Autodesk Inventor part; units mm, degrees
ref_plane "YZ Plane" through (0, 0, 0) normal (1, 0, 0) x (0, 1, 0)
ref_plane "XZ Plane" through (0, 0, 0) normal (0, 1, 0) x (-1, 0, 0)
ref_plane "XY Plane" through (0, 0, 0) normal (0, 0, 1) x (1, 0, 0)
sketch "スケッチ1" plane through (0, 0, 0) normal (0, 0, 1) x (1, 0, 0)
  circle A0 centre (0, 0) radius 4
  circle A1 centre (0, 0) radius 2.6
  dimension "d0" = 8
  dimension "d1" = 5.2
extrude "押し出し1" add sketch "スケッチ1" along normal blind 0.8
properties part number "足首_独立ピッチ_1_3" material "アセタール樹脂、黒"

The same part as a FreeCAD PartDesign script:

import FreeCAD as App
import Part
import Sketcher
from FreeCAD import Vector
Q = App.Units.Quantity

doc = App.newDocument("Part")
body = doc.addObject("PartDesign::Body", "Body")

# Sketch on XY plane
sketch1 = body.newObject("Sketcher::SketchObject", "Sketch")
sketch1.AttachmentSupport = (doc.getObject("XY_Plane"), [""])
sketch1.MapMode = "FlatFace"
sketch1.addGeometry([
    Part.Circle(Vector(0, 0, 0), Vector(0, 0, 1), 4),
    Part.Circle(Vector(0, 0, 0), Vector(0, 0, 1), 2.6),
], False)
sketch1.addConstraint([
    Sketcher.Constraint("Coincident", 0, 3, -1, 1),
    Sketcher.Constraint("Coincident", 1, 3, -1, 1),
    Sketcher.Constraint("Diameter", 0, Q("8 mm")),
    Sketcher.Constraint("Diameter", 1, Q("5.2 mm")),
])
pad1 = body.newObject("PartDesign::Pad", "Pad")
pad1.Profile = sketch1
pad1.Length = 0.8

doc.recompute()
